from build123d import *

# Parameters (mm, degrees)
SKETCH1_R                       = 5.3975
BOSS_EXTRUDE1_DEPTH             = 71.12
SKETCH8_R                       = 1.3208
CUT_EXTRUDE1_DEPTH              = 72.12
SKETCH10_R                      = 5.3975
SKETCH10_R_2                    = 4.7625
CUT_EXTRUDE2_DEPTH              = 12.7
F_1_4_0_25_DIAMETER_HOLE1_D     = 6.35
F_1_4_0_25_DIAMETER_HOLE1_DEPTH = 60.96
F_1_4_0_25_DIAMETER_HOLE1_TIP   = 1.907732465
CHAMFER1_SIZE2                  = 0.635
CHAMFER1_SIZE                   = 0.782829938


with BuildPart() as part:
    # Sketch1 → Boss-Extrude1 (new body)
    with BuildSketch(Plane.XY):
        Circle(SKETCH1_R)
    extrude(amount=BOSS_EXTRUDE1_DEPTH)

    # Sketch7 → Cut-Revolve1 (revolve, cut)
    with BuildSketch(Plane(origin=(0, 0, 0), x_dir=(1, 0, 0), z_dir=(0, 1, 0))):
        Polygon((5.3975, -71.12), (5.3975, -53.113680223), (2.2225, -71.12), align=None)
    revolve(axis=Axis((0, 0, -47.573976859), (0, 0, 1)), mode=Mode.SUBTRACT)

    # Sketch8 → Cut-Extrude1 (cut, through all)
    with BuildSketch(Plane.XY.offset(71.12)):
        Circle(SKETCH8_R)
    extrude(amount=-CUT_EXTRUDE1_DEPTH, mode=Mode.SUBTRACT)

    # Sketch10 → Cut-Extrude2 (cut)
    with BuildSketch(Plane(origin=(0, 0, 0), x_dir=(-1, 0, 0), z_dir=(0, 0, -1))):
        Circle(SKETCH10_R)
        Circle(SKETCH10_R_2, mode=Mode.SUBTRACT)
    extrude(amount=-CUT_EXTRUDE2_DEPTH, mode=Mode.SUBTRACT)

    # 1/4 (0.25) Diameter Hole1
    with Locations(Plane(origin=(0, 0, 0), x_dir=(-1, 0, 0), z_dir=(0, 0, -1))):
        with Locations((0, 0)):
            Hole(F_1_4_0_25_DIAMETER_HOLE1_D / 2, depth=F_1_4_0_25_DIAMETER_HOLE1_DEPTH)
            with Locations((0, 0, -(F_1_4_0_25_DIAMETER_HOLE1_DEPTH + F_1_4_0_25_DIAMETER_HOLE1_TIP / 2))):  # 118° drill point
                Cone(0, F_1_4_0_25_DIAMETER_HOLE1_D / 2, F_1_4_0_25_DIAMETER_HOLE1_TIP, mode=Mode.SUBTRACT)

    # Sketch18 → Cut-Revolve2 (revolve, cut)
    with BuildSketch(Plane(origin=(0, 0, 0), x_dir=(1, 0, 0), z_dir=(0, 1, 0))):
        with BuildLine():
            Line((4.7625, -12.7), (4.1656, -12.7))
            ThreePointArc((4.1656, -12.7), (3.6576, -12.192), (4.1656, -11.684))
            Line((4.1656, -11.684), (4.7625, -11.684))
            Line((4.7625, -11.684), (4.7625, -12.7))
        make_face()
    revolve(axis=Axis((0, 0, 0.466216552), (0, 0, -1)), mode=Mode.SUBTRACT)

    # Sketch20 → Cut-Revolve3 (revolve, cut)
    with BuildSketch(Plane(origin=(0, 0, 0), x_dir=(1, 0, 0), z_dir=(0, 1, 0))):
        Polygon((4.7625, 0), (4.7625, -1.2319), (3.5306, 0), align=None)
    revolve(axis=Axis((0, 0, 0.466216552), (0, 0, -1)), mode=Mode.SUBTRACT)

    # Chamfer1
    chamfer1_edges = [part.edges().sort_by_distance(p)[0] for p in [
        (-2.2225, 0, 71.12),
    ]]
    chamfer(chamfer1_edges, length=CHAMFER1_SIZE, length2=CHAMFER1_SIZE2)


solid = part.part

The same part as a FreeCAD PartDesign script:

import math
import FreeCAD as App
import Part
import Sketcher
Q = App.Units.Quantity


def edges_at(feature, points):
    """Names of the edges that pass closest to the given points."""
    edges = feature.Shape.Edges
    near = lambda p: min(range(len(edges)), key=lambda i: edges[i].distToShape(Part.Vertex(*p))[0])
    return sorted({f"Edge{near(p) + 1}" for p in points})


def add_polygon(sketch, points):
    """Adds a closed chain of lines whose ends are joined by coincident constraints."""
    first, n = sketch.GeometryCount, len(points)
    for a, b in zip(points, points[1:] + points[:1]):
        sketch.addGeometry(Part.LineSegment(App.Vector(*a, 0), App.Vector(*b, 0)), False)
    for i in range(n):
        sketch.addConstraint(Sketcher.Constraint("Coincident", first + i, 2, first + (i + 1) % n, 1))

doc = App.newDocument("Part")
body = doc.addObject("PartDesign::Body", "Body")

# Sketch on XY plane
sketch1 = body.newObject("Sketcher::SketchObject", "Sketch")
sketch1.AttachmentSupport = (doc.getObject("XY_Plane"), [""])
sketch1.MapMode = "FlatFace"
sketch1.addGeometry(Part.Circle(App.Vector(0, 0, 0), App.Vector(0, 0, 1), 5), False)
sketch1.addConstraint([
    Sketcher.Constraint("Coincident", 0, 3, -1, 1),
    Sketcher.Constraint("Diameter", 0, Q("0.425 in")),
])
pad1 = body.newObject("PartDesign::Pad", "Pad")
pad1.Profile = sketch1
pad1.Length = Q("2.8 in")

# Sketch on XZ plane
sketch2 = body.newObject("Sketcher::SketchObject", "Sketch001")
sketch2.AttachmentSupport = (doc.getObject("XZ_Plane"), [""])
sketch2.MapMode = "FlatFace"
add_polygon(sketch2, [(5.4, 71.1), (5.4, 53.1), (2.2, 71.1)])  # lines 0-2
sketch2.addConstraint([
    Sketcher.Constraint("Vertical", 0),
    Sketcher.Constraint("Horizontal", 2),
    Sketcher.Constraint("Angle", 1, Q("100 deg")),
    Sketcher.Constraint("DistanceY", -1, 1, 1, 2, Q("2.8 in")),
    Sketcher.Constraint("DistanceX", 2, 1, 2, 2, Q("0.125 in")),
    Sketcher.Constraint("DistanceX", -1, 1, 0, 2, Q("0.2125 in")),
])
groove = body.newObject("PartDesign::Groove", "Groove")
groove.Profile = sketch2
groove.ReferenceAxis = (sketch2, ["V_Axis"])
groove.Angle = 360

# Sketch on XY plane
sketch3 = body.newObject("Sketcher::SketchObject", "Sketch002")
sketch3.AttachmentSupport = (doc.getObject("XY_Plane"), [""])
sketch3.MapMode = "FlatFace"
sketch3.AttachmentOffset = App.Placement(App.Vector(0, 0, 2.8 * 25.4), App.Rotation())
sketch3.addGeometry(Part.Circle(App.Vector(0, 0, 0), App.Vector(0, 0, 1), 1.3), False)
sketch3.addConstraint([
    Sketcher.Constraint("Coincident", 0, 3, -1, 1),
    Sketcher.Constraint("Diameter", 0, Q("0.104 in")),
])
pocket1 = body.newObject("PartDesign::Pocket", "Pocket")
pocket1.Profile = sketch3
pocket1.Type = "ThroughAll"

# Sketch on XY plane
sketch4 = body.newObject("Sketcher::SketchObject", "Sketch003")
sketch4.AttachmentSupport = (doc.getObject("XY_Plane"), [""])
sketch4.MapMode = "FlatFace"
sketch4.addGeometry([
    Part.Circle(App.Vector(0, 0, 0), App.Vector(0, 0, 1), 5.4),
    Part.Circle(App.Vector(0, 0, 0), App.Vector(0, 0, 1), 4.8),
], False)
sketch4.addConstraint([
    Sketcher.Constraint("Coincident", 0, 3, -1, 1),
    Sketcher.Constraint("Coincident", 1, 3, -1, 1),
    Sketcher.Constraint("Diameter", 0, Q("0.425 in")),
    Sketcher.Constraint("Diameter", 1, Q("0.375 in")),
])
pocket2 = body.newObject("PartDesign::Pocket", "Pocket001")
pocket2.Profile = sketch4
pocket2.Length = Q("0.5 in")
pocket2.Reversed = True

# Sketch on XY plane
sketch5 = body.newObject("Sketcher::SketchObject", "Sketch004")
sketch5.AttachmentSupport = (doc.getObject("XY_Plane"), [""])
sketch5.MapMode = "FlatFace"
sketch5.addGeometry(Part.Circle(App.Vector(0, 0, 0), App.Vector(0, 0, 1), 3.2), False)
sketch5.addConstraint([
    Sketcher.Constraint("Coincident", 0, 3, -1, 1),
    Sketcher.Constraint("Diameter", 0, Q("0.25 in")),
])
doc.recompute()
hole = body.newObject("PartDesign::Hole", "Hole")
hole.Profile = sketch5
hole.ThreadType = "None"
hole.Diameter = Q("0.25 in")
hole.DepthType = "Dimension"
hole.Depth = Q("2.4 in")
hole.DrillPoint = "Angled"
hole.DrillPointAngle = 118
hole.Reversed = True

# Sketch on XZ plane
sketch6 = body.newObject("Sketcher::SketchObject", "Sketch005")
sketch6.AttachmentSupport = (doc.getObject("XZ_Plane"), [""])
sketch6.MapMode = "FlatFace"
sketch6.addGeometry([
    Part.LineSegment(App.Vector(4.2, 12.7, 0), App.Vector(4.8, 12.7, 0)),
    Part.LineSegment(App.Vector(4.8, 12.7, 0), App.Vector(4.8, 11.7, 0)),
    Part.LineSegment(App.Vector(4.8, 11.7, 0), App.Vector(4.2, 11.7, 0)),
    Part.ArcOfCircle(Part.Circle(App.Vector(4.2, 12.2, 0), App.Vector(0, 0, 1), 0.5), math.radians(90), math.radians(270)),
], False)
sketch6.addConstraint([
    Sketcher.Constraint("Coincident", 0, 2, 1, 1),
    Sketcher.Constraint("Coincident", 1, 2, 2, 1),
    Sketcher.Constraint("Tangent", 2, 2, 3, 2),
    Sketcher.Constraint("Tangent", 3, 1, 0, 1),
    Sketcher.Constraint("Horizontal", 0),
    Sketcher.Constraint("Vertical", 1),
    Sketcher.Constraint("Horizontal", 2),
    Sketcher.Constraint("Radius", 3, Q("0.02 in")),
    Sketcher.Constraint("DistanceY", -1, 1, 0, 2, Q("0.5 in")),
    Sketcher.Constraint("DistanceX", 0, 1, 0, 2, Q("0.0235 in")),
    Sketcher.Constraint("DistanceX", -1, 1, 3, 3, Q("0.164 in")),
])
groove2 = body.newObject("PartDesign::Groove", "Groove001")
groove2.Profile = sketch6
groove2.ReferenceAxis = (sketch6, ["V_Axis"])
groove2.Angle = 360

# Sketch on XZ plane
sketch7 = body.newObject("Sketcher::SketchObject", "Sketch006")
sketch7.AttachmentSupport = (doc.getObject("XZ_Plane"), [""])
sketch7.MapMode = "FlatFace"
add_polygon(sketch7, [(4.8, 1.2), (4.8, 0), (3.5, 0)])  # lines 0-2
sketch7.addConstraint([
    Sketcher.Constraint("Vertical", 0),
    Sketcher.Constraint("Horizontal", 1),
    Sketcher.Constraint("PointOnObject", 0, 2, -1),
    Sketcher.Constraint("Equal", 1, 0),
    Sketcher.Constraint("DistanceX", 1, 2, 1, 1, Q("0.0485 in")),
    Sketcher.Constraint("DistanceX", -1, 1, 0, 2, Q("0.1875 in")),
])
groove3 = body.newObject("PartDesign::Groove", "Groove002")
groove3.Profile = sketch7
groove3.ReferenceAxis = (sketch7, ["V_Axis"])
groove3.Angle = 360
doc.recompute()

chamfer = body.newObject("PartDesign::Chamfer", "Chamfer")
chamfer.Base = (groove3, edges_at(groove3, [(-2.223, 0, 71.12)]))
chamfer.ChamferType = "Two distances"
chamfer.Size = 0.78283
chamfer.Size2 = Q("0.025 in")

doc.recompute()
